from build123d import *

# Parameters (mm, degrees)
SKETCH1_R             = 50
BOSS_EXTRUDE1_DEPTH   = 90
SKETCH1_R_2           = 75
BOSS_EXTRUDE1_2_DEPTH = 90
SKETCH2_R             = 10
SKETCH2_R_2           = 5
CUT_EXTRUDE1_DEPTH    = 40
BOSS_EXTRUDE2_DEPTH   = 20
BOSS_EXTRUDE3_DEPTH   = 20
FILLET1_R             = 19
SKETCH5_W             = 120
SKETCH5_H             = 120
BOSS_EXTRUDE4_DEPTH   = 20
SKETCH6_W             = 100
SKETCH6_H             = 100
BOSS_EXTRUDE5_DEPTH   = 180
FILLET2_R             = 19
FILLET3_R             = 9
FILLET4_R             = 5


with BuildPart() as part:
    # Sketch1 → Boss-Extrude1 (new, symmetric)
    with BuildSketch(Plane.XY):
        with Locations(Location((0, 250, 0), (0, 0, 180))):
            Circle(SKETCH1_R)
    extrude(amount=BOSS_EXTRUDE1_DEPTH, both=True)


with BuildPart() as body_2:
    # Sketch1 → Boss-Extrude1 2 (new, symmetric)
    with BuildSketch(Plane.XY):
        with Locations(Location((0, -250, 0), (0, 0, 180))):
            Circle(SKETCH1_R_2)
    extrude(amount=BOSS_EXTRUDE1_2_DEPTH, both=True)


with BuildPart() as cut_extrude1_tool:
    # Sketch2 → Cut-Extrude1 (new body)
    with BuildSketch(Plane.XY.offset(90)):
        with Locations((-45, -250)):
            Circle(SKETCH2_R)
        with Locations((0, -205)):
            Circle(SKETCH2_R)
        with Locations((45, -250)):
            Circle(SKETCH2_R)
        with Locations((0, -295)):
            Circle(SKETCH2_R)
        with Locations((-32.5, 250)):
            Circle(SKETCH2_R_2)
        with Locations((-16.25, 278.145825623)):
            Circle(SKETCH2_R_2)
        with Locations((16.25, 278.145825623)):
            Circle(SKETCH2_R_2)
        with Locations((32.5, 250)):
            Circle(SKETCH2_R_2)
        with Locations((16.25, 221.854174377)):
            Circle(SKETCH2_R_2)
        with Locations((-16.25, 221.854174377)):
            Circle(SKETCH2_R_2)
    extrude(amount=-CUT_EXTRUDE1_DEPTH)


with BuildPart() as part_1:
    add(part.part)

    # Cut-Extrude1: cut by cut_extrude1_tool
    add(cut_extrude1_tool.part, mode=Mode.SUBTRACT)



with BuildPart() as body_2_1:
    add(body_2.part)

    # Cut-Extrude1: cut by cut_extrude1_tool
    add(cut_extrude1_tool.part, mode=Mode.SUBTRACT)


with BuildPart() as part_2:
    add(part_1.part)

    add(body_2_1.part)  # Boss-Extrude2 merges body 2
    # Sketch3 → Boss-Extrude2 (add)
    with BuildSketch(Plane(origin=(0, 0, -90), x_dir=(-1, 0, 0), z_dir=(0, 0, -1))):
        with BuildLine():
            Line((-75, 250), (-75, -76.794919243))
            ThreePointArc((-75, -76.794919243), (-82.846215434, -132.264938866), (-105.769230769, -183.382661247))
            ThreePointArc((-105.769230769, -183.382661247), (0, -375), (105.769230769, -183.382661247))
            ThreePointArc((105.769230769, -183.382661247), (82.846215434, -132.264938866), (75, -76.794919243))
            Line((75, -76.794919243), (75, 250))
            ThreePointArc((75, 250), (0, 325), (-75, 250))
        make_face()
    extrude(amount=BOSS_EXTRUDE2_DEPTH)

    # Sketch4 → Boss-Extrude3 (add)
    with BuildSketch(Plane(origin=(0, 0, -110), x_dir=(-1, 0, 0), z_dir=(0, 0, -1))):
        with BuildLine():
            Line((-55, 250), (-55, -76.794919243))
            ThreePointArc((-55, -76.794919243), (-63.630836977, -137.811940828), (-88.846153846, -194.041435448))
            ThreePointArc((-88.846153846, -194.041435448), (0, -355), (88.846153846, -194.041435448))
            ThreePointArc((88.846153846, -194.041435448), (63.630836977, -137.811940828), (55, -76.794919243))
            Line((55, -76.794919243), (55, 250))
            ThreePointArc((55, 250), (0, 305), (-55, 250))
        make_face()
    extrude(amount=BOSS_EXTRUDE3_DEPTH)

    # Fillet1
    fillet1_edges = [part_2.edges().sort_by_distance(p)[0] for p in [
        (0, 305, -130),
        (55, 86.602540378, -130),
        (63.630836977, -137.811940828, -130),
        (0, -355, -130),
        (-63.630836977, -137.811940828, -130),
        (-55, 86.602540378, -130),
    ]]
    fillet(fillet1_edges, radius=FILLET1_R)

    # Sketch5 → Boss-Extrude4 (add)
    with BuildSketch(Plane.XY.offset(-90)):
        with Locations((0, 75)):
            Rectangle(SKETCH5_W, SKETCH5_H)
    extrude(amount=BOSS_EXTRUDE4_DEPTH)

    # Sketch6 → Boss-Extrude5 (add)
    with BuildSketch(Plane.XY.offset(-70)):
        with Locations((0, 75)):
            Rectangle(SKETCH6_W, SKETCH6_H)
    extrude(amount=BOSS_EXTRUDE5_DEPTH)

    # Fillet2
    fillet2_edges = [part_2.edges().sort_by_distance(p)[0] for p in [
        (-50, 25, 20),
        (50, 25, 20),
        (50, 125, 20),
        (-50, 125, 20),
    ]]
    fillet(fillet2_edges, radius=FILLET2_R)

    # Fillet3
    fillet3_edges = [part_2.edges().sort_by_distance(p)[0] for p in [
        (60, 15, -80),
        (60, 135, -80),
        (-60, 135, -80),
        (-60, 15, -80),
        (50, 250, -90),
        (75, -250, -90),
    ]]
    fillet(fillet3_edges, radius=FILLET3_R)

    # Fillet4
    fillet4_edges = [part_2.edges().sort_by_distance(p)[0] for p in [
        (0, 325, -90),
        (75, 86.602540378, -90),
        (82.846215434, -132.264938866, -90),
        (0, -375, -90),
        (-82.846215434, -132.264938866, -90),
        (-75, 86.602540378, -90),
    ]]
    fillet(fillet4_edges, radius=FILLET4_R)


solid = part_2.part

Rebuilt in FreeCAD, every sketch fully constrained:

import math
import FreeCAD as App
import Part
import Sketcher
Q = App.Units.Quantity


def edges_at(feature, points):
    """Names of the edges that pass closest to the given points."""
    edges = feature.Shape.Edges
    near = lambda p: min(range(len(edges)), key=lambda i: edges[i].distToShape(Part.Vertex(*p))[0])
    return sorted({f"Edge{near(p) + 1}" for p in points})


def add_polygon(sketch, points):
    """Adds a closed chain of lines whose ends are joined by coincident constraints."""
    first, n = sketch.GeometryCount, len(points)
    for a, b in zip(points, points[1:] + points[:1]):
        sketch.addGeometry(Part.LineSegment(App.Vector(*a, 0), App.Vector(*b, 0)), False)
    for i in range(n):
        sketch.addConstraint(Sketcher.Constraint("Coincident", first + i, 2, first + (i + 1) % n, 1))

doc = App.newDocument("Part")
params = doc.addObject("Spreadsheet::Sheet", "Params")
for row, (alias, value) in enumerate([
    ("sketch1_diameter", "100 mm"),
    ("pad1_length", "180 mm"),
    ("sketch2_diameter", "150 mm"),
    ("pad2_length", "180 mm"),
    ("sketch3_diameter", "20 mm"),
    ("sketch3_diameter2", "10 mm"),
    ("pad3_length", "40 mm"),
    ("sketch4_radius", "200 mm"),
    ("sketch4_radius2", "125 mm"),
    ("sketch4_radius3", "75 mm"),
    ("pad4_length", "20 mm"),
    ("sketch5_radius", "220 mm"),
    ("sketch5_radius2", "105 mm"),
    ("sketch5_radius3", "55 mm"),
    ("pad5_length", "20 mm"),
    ("fillet_radius", "19 mm"),
    ("sketch6_width", "120 mm"),
    ("pad6_length", "20 mm"),
    ("sketch7_width", "100 mm"),
    ("pad7_length", "180 mm"),
    ("fillet2_radius", "19 mm"),
    ("fillet3_radius", "9 mm"),
    ("fillet4_radius", "5 mm"),
], start=1):
    params.set(f"A{row}", alias)
    params.set(f"B{row}", "=" + value)
    params.setAlias(f"B{row}", alias)

body = doc.addObject("PartDesign::Body", "Body")

sketch1 = body.newObject("Sketcher::SketchObject", "Sketch")
sketch1.AttachmentSupport = (doc.getObject("XY_Plane"), [""])
sketch1.MapMode = "FlatFace"
sketch1.addGeometry(Part.Circle(App.Vector(0, 250, 0), App.Vector(0, 0, 1), 50), False)
sketch1.addConstraint([
    Sketcher.Constraint("PointOnObject", 0, 3, -2),
    Sketcher.Constraint("Diameter", 0, Q("100 mm")),
    Sketcher.Constraint("DistanceY", -1, 1, 0, 3, Q("250 mm")),
])
sketch1.setExpression("Constraints[1]", "Params.sketch1_diameter")
pad1 = body.newObject("PartDesign::Pad", "Pad")
pad1.Profile = sketch1
pad1.setExpression("Length", "Params.pad1_length")
pad1.Midplane = True
body2 = doc.addObject("PartDesign::Body", "Body001")

sketch2 = body2.newObject("Sketcher::SketchObject", "Sketch001")
sketch2.AttachmentSupport = (doc.getObject("XY_Plane001"), [""])
sketch2.MapMode = "FlatFace"
sketch2.addGeometry(Part.Circle(App.Vector(0, -250, 0), App.Vector(0, 0, 1), 75), False)
sketch2.addConstraint([
    Sketcher.Constraint("PointOnObject", 0, 3, -2),
    Sketcher.Constraint("Diameter", 0, Q("150 mm")),
    Sketcher.Constraint("DistanceY", 0, 3, -1, 1, Q("250 mm")),
])
sketch2.setExpression("Constraints[1]", "Params.sketch2_diameter")
pad2 = body2.newObject("PartDesign::Pad", "Pad001")
pad2.Profile = sketch2
pad2.setExpression("Length", "Params.pad2_length")
pad2.Midplane = True
body3 = doc.addObject("PartDesign::Body", "Body002")
body3.AllowCompound = True

sketch3 = body3.newObject("Sketcher::SketchObject", "Sketch002")
sketch3.AttachmentSupport = (doc.getObject("XY_Plane002"), [""])
sketch3.MapMode = "FlatFace"
sketch3.AttachmentOffset = App.Placement(App.Vector(0, 0, 90), App.Rotation())
sketch3.addGeometry([
    Part.Circle(App.Vector(-45, -250, 0), App.Vector(0, 0, 1), 10),
    Part.Circle(App.Vector(0, -205, 0), App.Vector(0, 0, 1), 10),
    Part.Circle(App.Vector(45, -250, 0), App.Vector(0, 0, 1), 10),
    Part.Circle(App.Vector(0, -295, 0), App.Vector(0, 0, 1), 10),
    Part.Circle(App.Vector(-32, 250, 0), App.Vector(0, 0, 1), 5),
    Part.Circle(App.Vector(-16, 278, 0), App.Vector(0, 0, 1), 5),
    Part.Circle(App.Vector(16, 278, 0), App.Vector(0, 0, 1), 5),
    Part.Circle(App.Vector(32, 250, 0), App.Vector(0, 0, 1), 5),
    Part.Circle(App.Vector(16, 222, 0), App.Vector(0, 0, 1), 5),
    Part.Circle(App.Vector(-16, 222, 0), App.Vector(0, 0, 1), 5),
], False)
sketch3.addConstraint([
    Sketcher.Constraint("Equal", 0, 1),
    Sketcher.Constraint("Equal", 1, 2),
    Sketcher.Constraint("Equal", 2, 3),
    Sketcher.Constraint("Equal", 4, 5),
    Sketcher.Constraint("Equal", 5, 6),
    Sketcher.Constraint("Equal", 6, 7),
    Sketcher.Constraint("Equal", 7, 8),
    Sketcher.Constraint("Equal", 8, 9),
    Sketcher.Constraint("Symmetric", 0, 3, 2, 3, -2),
    Sketcher.Constraint("Symmetric", 5, 3, 6, 3, -2),
    Sketcher.Constraint("Symmetric", 4, 3, 7, 3, -2),
    Sketcher.Constraint("Symmetric", 8, 3, 9, 3, -2),
    Sketcher.Constraint("PointOnObject", 1, 3, -2),
    Sketcher.Constraint("PointOnObject", 3, 3, -2),
    Sketcher.Constraint("Vertical", 6, 3, 8, 3),
    Sketcher.Constraint("Diameter", 0, Q("20 mm")),
    Sketcher.Constraint("Diameter", 4, Q("10 mm")),
    Sketcher.Constraint("DistanceX", 0, 3, -1, 1, Q("45 mm")),
    Sketcher.Constraint("DistanceY", 0, 3, -1, 1, Q("250 mm")),
    Sketcher.Constraint("DistanceY", 1, 3, -1, 1, Q("205 mm")),
    Sketcher.Constraint("DistanceY", 3, 3, -1, 1, Q("295 mm")),
    Sketcher.Constraint("DistanceY", -1, 1, 4, 3, Q("250 mm")),
    Sketcher.Constraint("DistanceX", 4, 3, 7, 3, Q("65 mm")),
    Sketcher.Constraint("DistanceX", 5, 3, 6, 3, Q("32.5 mm")),
    Sketcher.Constraint("DistanceY", 8, 3, 6, 3, Q("56.291651 mm")),
    Sketcher.Constraint("DistanceY", -1, 1, 5, 3, Q("278.145826 mm")),
])
sketch3.setExpression("Constraints[15]", "Params.sketch3_diameter")
sketch3.setExpression("Constraints[16]", "Params.sketch3_diameter2")
pad3 = body3.newObject("PartDesign::Pad", "Pad002")
pad3.Profile = sketch3
pad3.setExpression("Length", "Params.pad3_length")
pad3.Reversed = True
doc.recompute()

body4 = doc.addObject("PartDesign::Body", "Body003")
body4.BaseFeature = body3
boolean = body.newObject("PartDesign::Boolean", "Boolean")
boolean.Type = "Cut"
boolean.addObjects([body4])
doc.recompute()

boolean2 = body2.newObject("PartDesign::Boolean", "Boolean001")
boolean2.Type = "Cut"
boolean2.addObjects([body3])
body.AllowCompound = True
doc.recompute()

boolean3 = body.newObject("PartDesign::Boolean", "Boolean002")
boolean3.Type = "Fuse"
boolean3.addObjects([body2])

sketch4 = body.newObject("Sketcher::SketchObject", "Sketch003")
sketch4.AttachmentSupport = (doc.getObject("XY_Plane"), [""])
sketch4.MapMode = "FlatFace"
sketch4.AttachmentOffset = App.Placement(App.Vector(0, 0, -90), App.Rotation())
sketch4.addGeometry([
    Part.LineSegment(App.Vector(75, 250, 0), App.Vector(75, -77, 0)),
    Part.ArcOfCircle(Part.Circle(App.Vector(275, -77, 0), App.Vector(0, 0, 1), 200), math.radians(180), math.radians(212)),
    Part.ArcOfCircle(Part.Circle(App.Vector(0, -250, 0), App.Vector(0, 0, 1), 125), math.radians(148), math.radians(392)),
    Part.ArcOfCircle(Part.Circle(App.Vector(-275, -77, 0), App.Vector(0, 0, 1), 200), math.radians(-32), math.radians(0)),
    Part.LineSegment(App.Vector(-75, -77, 0), App.Vector(-75, 250, 0)),
    Part.ArcOfCircle(Part.Circle(App.Vector(0, 250, 0), App.Vector(0, 0, 1), 75), math.radians(0), math.radians(180)),
], False)
sketch4.addConstraint([
    Sketcher.Constraint("Tangent", 0, 2, 1, 1),
    Sketcher.Constraint("Tangent", 1, 2, 2, 2),
    Sketcher.Constraint("Tangent", 2, 1, 3, 1),
    Sketcher.Constraint("Tangent", 3, 2, 4, 1),
    Sketcher.Constraint("Tangent", 4, 2, 5, 2),
    Sketcher.Constraint("Tangent", 5, 1, 0, 1),
    Sketcher.Constraint("Vertical", 0),
    Sketcher.Constraint("Vertical", 4),
    Sketcher.Constraint("Equal", 1, 3),
    Sketcher.Constraint("Symmetric", 2, 3, 5, 3, -1, 1),
    Sketcher.Constraint("PointOnObject", 2, 3, -2),
    Sketcher.Constraint("Radius", 1, Q("200 mm")),
    Sketcher.Constraint("Radius", 2, Q("125 mm")),
    Sketcher.Constraint("Radius", 5, Q("75 mm")),
    Sketcher.Constraint("DistanceY", 2, 3, -1, 1, Q("250 mm")),
])
sketch4.setExpression("Constraints[11]", "Params.sketch4_radius")
sketch4.setExpression("Constraints[12]", "Params.sketch4_radius2")
sketch4.setExpression("Constraints[13]", "Params.sketch4_radius3")
pad4 = body.newObject("PartDesign::Pad", "Pad003")
pad4.Profile = sketch4
pad4.setExpression("Length", "Params.pad4_length")
pad4.Reversed = True

sketch5 = body.newObject("Sketcher::SketchObject", "Sketch004")
sketch5.AttachmentSupport = (doc.getObject("XY_Plane"), [""])
sketch5.MapMode = "FlatFace"
sketch5.AttachmentOffset = App.Placement(App.Vector(0, 0, -110), App.Rotation())
sketch5.addGeometry([
    Part.LineSegment(App.Vector(55, 250, 0), App.Vector(55, -77, 0)),
    Part.ArcOfCircle(Part.Circle(App.Vector(275, -77, 0), App.Vector(0, 0, 1), 220), math.radians(180), math.radians(212)),
    Part.ArcOfCircle(Part.Circle(App.Vector(0, -250, 0), App.Vector(0, 0, 1), 105), math.radians(148), math.radians(392)),
    Part.ArcOfCircle(Part.Circle(App.Vector(-275, -77, 0), App.Vector(0, 0, 1), 220), math.radians(-32), math.radians(0)),
    Part.LineSegment(App.Vector(-55, -77, 0), App.Vector(-55, 250, 0)),
    Part.ArcOfCircle(Part.Circle(App.Vector(0, 250, 0), App.Vector(0, 0, 1), 55), math.radians(0), math.radians(180)),
], False)
sketch5.addConstraint([
    Sketcher.Constraint("Tangent", 0, 2, 1, 1),
    Sketcher.Constraint("Tangent", 1, 2, 2, 2),
    Sketcher.Constraint("Tangent", 2, 1, 3, 1),
    Sketcher.Constraint("Tangent", 3, 2, 4, 1),
    Sketcher.Constraint("Tangent", 4, 2, 5, 2),
    Sketcher.Constraint("Tangent", 5, 1, 0, 1),
    Sketcher.Constraint("Vertical", 0),
    Sketcher.Constraint("Vertical", 4),
    Sketcher.Constraint("Equal", 1, 3),
    Sketcher.Constraint("Symmetric", 2, 3, 5, 3, -1, 1),
    Sketcher.Constraint("PointOnObject", 2, 3, -2),
    Sketcher.Constraint("Radius", 1, Q("220 mm")),
    Sketcher.Constraint("Radius", 2, Q("105 mm")),
    Sketcher.Constraint("Radius", 5, Q("55 mm")),
    Sketcher.Constraint("DistanceY", 2, 3, -1, 1, Q("250 mm")),
])
sketch5.setExpression("Constraints[11]", "Params.sketch5_radius")
sketch5.setExpression("Constraints[12]", "Params.sketch5_radius2")
sketch5.setExpression("Constraints[13]", "Params.sketch5_radius3")
pad5 = body.newObject("PartDesign::Pad", "Pad004")
pad5.Profile = sketch5
pad5.setExpression("Length", "Params.pad5_length")
pad5.Reversed = True
doc.recompute()

fillet = body.newObject("PartDesign::Fillet", "Fillet")
fillet.Base = (pad5, edges_at(pad5, [
    (0, 305, -130),
    (55, 86.603, -130),
    (63.631, -137.812, -130),
    (0, -355, -130),
    (-63.631, -137.812, -130),
    (-55, 86.603, -130),
]))
fillet.setExpression("Radius", "Params.fillet_radius")

sketch6 = body.newObject("Sketcher::SketchObject", "Sketch005")
sketch6.AttachmentSupport = (doc.getObject("XY_Plane"), [""])
sketch6.MapMode = "FlatFace"
sketch6.AttachmentOffset = App.Placement(App.Vector(0, 0, -90), App.Rotation())
add_polygon(sketch6, [(-60, 135), (-60, 15), (60, 15), (60, 135)])
sketch6.addConstraint([
    Sketcher.Constraint("Vertical", 0),
    Sketcher.Constraint("Horizontal", 1),
    Sketcher.Constraint("Vertical", 2),
    Sketcher.Constraint("Horizontal", 3),
    Sketcher.Constraint("Equal", 3, 0),
    Sketcher.Constraint("DistanceX", 1, 1, 1, 2, Q("120 mm")),
    Sketcher.Constraint("DistanceX", 0, 2, -1, 1, Q("60 mm")),
    Sketcher.Constraint("DistanceY", -1, 1, 0, 2, Q("15 mm")),
])
sketch6.setExpression("Constraints[9]", "Params.sketch6_width")
pad6 = body.newObject("PartDesign::Pad", "Pad005")
pad6.Profile = sketch6
pad6.setExpression("Length", "Params.pad6_length")

sketch7 = body.newObject("Sketcher::SketchObject", "Sketch006")
sketch7.AttachmentSupport = (doc.getObject("XY_Plane"), [""])
sketch7.MapMode = "FlatFace"
sketch7.AttachmentOffset = App.Placement(App.Vector(0, 0, -70), App.Rotation())
add_polygon(sketch7, [(-50, 125), (-50, 25), (50, 25), (50, 125)])
sketch7.addConstraint([
    Sketcher.Constraint("Vertical", 0),
    Sketcher.Constraint("Horizontal", 1),
    Sketcher.Constraint("Vertical", 2),
    Sketcher.Constraint("Horizontal", 3),
    Sketcher.Constraint("Equal", 3, 0),
    Sketcher.Constraint("DistanceX", 1, 1, 1, 2, Q("100 mm")),
    Sketcher.Constraint("DistanceX", 0, 2, -1, 1, Q("50 mm")),
    Sketcher.Constraint("DistanceY", -1, 1, 0, 2, Q("25 mm")),
])
sketch7.setExpression("Constraints[9]", "Params.sketch7_width")
pad7 = body.newObject("PartDesign::Pad", "Pad006")
pad7.Profile = sketch7
pad7.setExpression("Length", "Params.pad7_length")
doc.recompute()

fillet2 = body.newObject("PartDesign::Fillet", "Fillet001")
fillet2.Base = (pad7, edges_at(pad7, [
    (-50, 25, 20),
    (50, 25, 20),
    (50, 125, 20),
    (-50, 125, 20),
]))
fillet2.setExpression("Radius", "Params.fillet2_radius")
doc.recompute()

fillet3 = body.newObject("PartDesign::Fillet", "Fillet002")
fillet3.Base = (fillet2, edges_at(fillet2, [
    (60, 15, -80),
    (60, 135, -80),
    (-60, 135, -80),
    (-60, 15, -80),
    (50, 250, -90),
    (75, -250, -90),
]))
fillet3.setExpression("Radius", "Params.fillet3_radius")
doc.recompute()

fillet4 = body.newObject("PartDesign::Fillet", "Fillet003")
fillet4.Base = (fillet3, edges_at(fillet3, [
    (0, 325, -90),
    (75, 86.603, -90),
    (82.846, -132.265, -90),
    (0, -375, -90),
    (-82.846, -132.265, -90),
    (-75, 86.603, -90),
]))
fillet4.setExpression("Radius", "Params.fillet4_radius")

doc.recompute()
